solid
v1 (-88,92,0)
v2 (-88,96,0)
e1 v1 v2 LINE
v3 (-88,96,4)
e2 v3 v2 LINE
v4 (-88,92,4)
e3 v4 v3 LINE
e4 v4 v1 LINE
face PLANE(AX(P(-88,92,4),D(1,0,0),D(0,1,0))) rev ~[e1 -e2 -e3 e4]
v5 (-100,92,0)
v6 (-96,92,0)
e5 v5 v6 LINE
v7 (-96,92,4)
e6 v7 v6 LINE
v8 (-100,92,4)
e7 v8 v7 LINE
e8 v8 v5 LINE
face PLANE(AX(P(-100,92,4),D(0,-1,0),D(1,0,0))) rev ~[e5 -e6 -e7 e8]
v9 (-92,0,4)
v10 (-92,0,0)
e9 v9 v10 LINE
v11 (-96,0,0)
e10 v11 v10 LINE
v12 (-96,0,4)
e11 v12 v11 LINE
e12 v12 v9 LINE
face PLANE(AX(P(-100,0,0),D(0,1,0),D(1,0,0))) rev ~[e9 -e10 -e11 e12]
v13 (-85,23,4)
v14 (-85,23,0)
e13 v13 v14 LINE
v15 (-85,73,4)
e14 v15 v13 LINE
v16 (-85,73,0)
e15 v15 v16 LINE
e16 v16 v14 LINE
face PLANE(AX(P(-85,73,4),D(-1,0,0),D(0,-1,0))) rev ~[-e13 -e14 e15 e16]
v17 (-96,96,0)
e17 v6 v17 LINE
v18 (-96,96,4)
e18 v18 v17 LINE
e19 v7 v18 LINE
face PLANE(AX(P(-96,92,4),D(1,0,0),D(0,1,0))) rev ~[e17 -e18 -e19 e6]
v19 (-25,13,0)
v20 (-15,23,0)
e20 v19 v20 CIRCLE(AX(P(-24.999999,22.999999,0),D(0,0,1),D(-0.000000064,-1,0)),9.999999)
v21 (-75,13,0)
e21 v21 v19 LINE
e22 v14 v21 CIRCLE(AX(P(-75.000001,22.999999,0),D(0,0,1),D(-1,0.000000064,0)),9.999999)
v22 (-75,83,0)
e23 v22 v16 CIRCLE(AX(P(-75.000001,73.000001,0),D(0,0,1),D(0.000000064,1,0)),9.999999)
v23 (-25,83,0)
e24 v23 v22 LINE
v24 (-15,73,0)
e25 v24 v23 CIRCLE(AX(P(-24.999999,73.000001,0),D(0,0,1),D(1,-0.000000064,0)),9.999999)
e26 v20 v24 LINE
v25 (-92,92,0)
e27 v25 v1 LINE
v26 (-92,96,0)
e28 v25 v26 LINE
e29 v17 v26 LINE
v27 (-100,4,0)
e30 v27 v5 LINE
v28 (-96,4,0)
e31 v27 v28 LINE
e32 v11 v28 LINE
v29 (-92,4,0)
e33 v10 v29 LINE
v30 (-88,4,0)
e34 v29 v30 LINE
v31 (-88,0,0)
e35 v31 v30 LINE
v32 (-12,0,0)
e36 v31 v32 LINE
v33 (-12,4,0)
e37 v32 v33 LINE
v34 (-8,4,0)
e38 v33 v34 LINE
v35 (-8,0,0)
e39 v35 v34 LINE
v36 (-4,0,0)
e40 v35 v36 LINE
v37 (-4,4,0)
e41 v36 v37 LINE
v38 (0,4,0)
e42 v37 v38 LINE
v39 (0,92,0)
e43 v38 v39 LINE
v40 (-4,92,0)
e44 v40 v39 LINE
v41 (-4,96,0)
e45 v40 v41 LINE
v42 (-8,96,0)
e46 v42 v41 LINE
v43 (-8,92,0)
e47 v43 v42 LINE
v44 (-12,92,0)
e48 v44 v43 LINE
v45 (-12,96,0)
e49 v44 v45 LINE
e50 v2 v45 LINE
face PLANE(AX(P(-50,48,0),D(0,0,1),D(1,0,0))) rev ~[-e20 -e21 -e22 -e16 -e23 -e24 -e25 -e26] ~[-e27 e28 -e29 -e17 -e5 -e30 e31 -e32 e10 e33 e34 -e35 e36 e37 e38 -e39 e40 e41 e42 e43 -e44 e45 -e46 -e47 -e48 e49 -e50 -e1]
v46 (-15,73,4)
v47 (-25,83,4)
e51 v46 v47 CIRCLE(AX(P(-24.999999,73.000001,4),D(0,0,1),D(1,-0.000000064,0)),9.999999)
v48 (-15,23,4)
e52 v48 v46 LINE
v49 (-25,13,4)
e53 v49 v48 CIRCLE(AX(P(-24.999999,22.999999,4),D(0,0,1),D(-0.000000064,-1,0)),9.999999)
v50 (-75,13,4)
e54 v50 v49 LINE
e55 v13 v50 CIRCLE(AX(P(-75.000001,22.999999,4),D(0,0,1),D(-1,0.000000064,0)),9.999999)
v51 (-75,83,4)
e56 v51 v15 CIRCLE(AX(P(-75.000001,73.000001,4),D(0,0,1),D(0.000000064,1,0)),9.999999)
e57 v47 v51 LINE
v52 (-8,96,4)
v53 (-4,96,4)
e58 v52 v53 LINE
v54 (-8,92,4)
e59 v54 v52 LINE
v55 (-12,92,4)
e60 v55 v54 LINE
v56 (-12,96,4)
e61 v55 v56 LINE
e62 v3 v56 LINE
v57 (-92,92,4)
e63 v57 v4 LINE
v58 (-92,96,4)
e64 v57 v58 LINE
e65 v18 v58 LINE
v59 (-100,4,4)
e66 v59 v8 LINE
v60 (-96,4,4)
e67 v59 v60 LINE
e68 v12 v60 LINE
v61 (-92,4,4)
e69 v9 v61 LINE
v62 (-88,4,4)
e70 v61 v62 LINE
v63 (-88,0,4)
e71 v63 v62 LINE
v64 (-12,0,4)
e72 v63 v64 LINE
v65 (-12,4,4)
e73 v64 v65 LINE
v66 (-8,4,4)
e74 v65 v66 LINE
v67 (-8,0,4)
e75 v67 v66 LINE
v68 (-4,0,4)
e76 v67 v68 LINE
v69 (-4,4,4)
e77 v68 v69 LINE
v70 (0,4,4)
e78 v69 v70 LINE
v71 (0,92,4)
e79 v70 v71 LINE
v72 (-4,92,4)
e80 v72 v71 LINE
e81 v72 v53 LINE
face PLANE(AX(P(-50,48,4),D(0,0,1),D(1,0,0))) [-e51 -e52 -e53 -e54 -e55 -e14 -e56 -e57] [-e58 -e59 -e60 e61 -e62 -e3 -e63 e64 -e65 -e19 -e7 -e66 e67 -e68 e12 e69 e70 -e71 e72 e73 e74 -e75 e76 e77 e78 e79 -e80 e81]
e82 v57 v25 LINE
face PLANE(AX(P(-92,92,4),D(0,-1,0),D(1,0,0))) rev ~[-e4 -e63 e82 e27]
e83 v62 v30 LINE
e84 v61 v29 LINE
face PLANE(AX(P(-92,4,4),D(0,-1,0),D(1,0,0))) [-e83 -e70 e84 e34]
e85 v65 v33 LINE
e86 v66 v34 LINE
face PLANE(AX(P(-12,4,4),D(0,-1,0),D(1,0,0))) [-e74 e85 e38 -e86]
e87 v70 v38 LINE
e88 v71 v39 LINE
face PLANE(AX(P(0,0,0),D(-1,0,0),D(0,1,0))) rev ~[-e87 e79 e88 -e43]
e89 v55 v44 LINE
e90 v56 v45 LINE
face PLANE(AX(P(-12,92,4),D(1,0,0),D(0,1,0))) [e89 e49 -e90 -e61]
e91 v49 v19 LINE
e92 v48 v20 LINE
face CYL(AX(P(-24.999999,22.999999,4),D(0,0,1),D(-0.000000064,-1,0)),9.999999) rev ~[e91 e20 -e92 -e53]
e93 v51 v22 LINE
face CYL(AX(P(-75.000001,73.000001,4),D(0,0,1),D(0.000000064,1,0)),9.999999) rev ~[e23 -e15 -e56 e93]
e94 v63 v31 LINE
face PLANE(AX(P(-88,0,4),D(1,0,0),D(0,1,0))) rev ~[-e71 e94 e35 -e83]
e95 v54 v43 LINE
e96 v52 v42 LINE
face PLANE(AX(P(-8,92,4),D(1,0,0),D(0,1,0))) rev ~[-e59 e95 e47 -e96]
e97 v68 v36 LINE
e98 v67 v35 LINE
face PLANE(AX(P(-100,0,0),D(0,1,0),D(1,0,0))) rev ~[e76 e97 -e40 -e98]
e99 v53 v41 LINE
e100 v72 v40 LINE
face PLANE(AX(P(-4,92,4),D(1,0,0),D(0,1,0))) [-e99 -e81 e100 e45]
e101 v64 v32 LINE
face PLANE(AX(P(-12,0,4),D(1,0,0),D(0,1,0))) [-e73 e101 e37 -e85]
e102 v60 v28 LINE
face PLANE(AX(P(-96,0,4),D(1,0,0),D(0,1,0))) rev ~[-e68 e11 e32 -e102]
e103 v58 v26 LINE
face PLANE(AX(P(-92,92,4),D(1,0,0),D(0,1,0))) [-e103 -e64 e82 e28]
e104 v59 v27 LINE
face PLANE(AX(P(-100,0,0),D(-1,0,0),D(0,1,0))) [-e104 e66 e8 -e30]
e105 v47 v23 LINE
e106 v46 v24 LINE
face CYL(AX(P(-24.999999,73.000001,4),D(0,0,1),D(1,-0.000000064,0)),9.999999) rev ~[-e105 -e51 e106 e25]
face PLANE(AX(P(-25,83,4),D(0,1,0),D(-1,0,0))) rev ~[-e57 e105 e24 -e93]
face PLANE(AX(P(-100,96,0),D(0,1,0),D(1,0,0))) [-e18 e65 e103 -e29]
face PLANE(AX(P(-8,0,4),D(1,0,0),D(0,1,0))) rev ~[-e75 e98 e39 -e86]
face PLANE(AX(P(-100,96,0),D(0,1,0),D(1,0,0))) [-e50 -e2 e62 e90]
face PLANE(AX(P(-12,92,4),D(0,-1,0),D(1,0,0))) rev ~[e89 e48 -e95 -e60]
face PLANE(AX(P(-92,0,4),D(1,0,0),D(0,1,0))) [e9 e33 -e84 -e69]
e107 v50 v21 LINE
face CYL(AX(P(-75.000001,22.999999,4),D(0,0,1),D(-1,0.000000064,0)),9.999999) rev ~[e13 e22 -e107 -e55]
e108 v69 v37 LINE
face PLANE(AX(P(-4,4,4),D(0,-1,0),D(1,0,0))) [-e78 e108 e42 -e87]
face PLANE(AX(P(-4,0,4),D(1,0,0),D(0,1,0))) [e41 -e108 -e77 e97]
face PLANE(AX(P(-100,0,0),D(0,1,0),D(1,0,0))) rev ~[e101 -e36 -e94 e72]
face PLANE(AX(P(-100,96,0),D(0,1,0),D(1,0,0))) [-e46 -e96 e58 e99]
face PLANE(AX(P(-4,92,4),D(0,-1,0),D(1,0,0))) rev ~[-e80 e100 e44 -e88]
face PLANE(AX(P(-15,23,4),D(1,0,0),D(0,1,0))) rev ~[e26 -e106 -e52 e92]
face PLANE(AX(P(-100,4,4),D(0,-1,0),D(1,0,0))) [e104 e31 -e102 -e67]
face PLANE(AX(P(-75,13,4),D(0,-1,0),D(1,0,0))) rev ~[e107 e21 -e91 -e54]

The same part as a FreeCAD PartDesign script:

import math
import FreeCAD as App
import Part
import Sketcher
from FreeCAD import Vector


def add_polygon(sketch, points):
    """Adds a closed chain of lines whose ends are joined by coincident constraints."""
    first, n = sketch.GeometryCount, len(points)
    for a, b in zip(points, points[1:] + points[:1]):
        sketch.addGeometry(Part.LineSegment(App.Vector(*a, 0), App.Vector(*b, 0)), False)
    for i in range(n):
        sketch.addConstraint(Sketcher.Constraint("Coincident", first + i, 2, first + (i + 1) % n, 1))

doc = App.newDocument("Part")
body = doc.addObject("PartDesign::Body", "Body")

# Sketch on XY plane
sketch1 = body.newObject("Sketcher::SketchObject", "Sketch")
sketch1.AttachmentSupport = (doc.getObject("XY_Plane"), [""])
sketch1.MapMode = "FlatFace"
add_polygon(sketch1, [(-100, 96), (-100, 0), (0, 0), (0, 96)])  # lines 0-3
sketch1.addConstraint([
    Sketcher.Constraint("Vertical", 0),
    Sketcher.Constraint("Horizontal", 1),
    Sketcher.Constraint("Vertical", 2),
    Sketcher.Constraint("Horizontal", 3),
    Sketcher.Constraint("Coincident", 1, 2, -1, 1),
    Sketcher.Constraint("DistanceX", 1, 1, 1, 2, 100.0),
    Sketcher.Constraint("DistanceY", 0, 2, 0, 1, 96.0),
])
pad1 = body.newObject("PartDesign::Pad", "Pad")
pad1.Profile = sketch1
pad1.Length = 4

# Sketch on XY plane
sketch2 = body.newObject("Sketcher::SketchObject", "Sketch001")
sketch2.AttachmentSupport = (doc.getObject("XY_Plane"), [""])
sketch2.MapMode = "FlatFace"
sketch2.AttachmentOffset = App.Placement(Vector(0, 0, 4), App.Rotation())
add_polygon(sketch2, [(-4, 4), (-4, 0), (0, 0), (0, 4)])  # lines 0-3
add_polygon(sketch2, [(-12, 4), (-12, 0), (-8, 0), (-8, 4)])  # lines 4-7
add_polygon(sketch2, [(-4, 96), (-4, 92), (0, 92), (0, 96)])  # lines 8-11
add_polygon(sketch2, [(-12, 96), (-12, 92), (-8, 92), (-8, 96)])  # lines 12-15
add_polygon(sketch2, [(-100, 96), (-100, 92), (-96, 92), (-96, 96)])  # lines 16-19
add_polygon(sketch2, [(-92, 4), (-92, 0), (-88, 0), (-88, 4)])  # lines 20-23
add_polygon(sketch2, [(-100, 4), (-100, 0), (-96, 0), (-96, 4)])  # lines 24-27
add_polygon(sketch2, [(-92, 96), (-92, 92), (-88, 92), (-88, 96)])  # lines 28-31
sketch2.addConstraint([
    Sketcher.Constraint("Vertical", 0),
    Sketcher.Constraint("Horizontal", 1),
    Sketcher.Constraint("Vertical", 2),
    Sketcher.Constraint("Horizontal", 3),
    Sketcher.Constraint("Vertical", 4),
    Sketcher.Constraint("Horizontal", 5),
    Sketcher.Constraint("Vertical", 6),
    Sketcher.Constraint("Horizontal", 7),
    Sketcher.Constraint("Vertical", 8),
    Sketcher.Constraint("Horizontal", 9),
    Sketcher.Constraint("Vertical", 10),
    Sketcher.Constraint("Horizontal", 11),
    Sketcher.Constraint("Vertical", 12),
    Sketcher.Constraint("Horizontal", 13),
    Sketcher.Constraint("Vertical", 14),
    Sketcher.Constraint("Horizontal", 15),
    Sketcher.Constraint("Vertical", 16),
    Sketcher.Constraint("Horizontal", 17),
    Sketcher.Constraint("Vertical", 18),
    Sketcher.Constraint("Horizontal", 19),
    Sketcher.Constraint("Vertical", 20),
    Sketcher.Constraint("Horizontal", 21),
    Sketcher.Constraint("Vertical", 22),
    Sketcher.Constraint("Horizontal", 23),
    Sketcher.Constraint("Vertical", 24),
    Sketcher.Constraint("Horizontal", 25),
    Sketcher.Constraint("Vertical", 26),
    Sketcher.Constraint("Horizontal", 27),
    Sketcher.Constraint("Vertical", 28),
    Sketcher.Constraint("Horizontal", 29),
    Sketcher.Constraint("Vertical", 30),
    Sketcher.Constraint("Horizontal", 31),
    Sketcher.Constraint("Coincident", 1, 2, -1, 1),
    Sketcher.Constraint("PointOnObject", 4, 2, -1),
    Sketcher.Constraint("PointOnObject", 9, 2, -2),
    Sketcher.Constraint("PointOnObject", 20, 2, -1),
    Sketcher.Constraint("PointOnObject", 24, 2, -1),
    Sketcher.Constraint("Horizontal", 3, 2, 6, 2),
    Sketcher.Constraint("Horizontal", 9, 2, 12, 2),
    Sketcher.Constraint("Horizontal", 11, 2, 14, 2),
    Sketcher.Constraint("Horizontal", 13, 2, 16, 2),
    Sketcher.Constraint("Horizontal", 15, 2, 18, 2),
    Sketcher.Constraint("Horizontal", 7, 2, 22, 2),
    Sketcher.Constraint("Horizontal", 23, 2, 26, 2),
    Sketcher.Constraint("Horizontal", 17, 2, 28, 2),
    Sketcher.Constraint("Horizontal", 19, 2, 30, 2),
    Sketcher.Constraint("Vertical", 3, 2, 8, 2),
    Sketcher.Constraint("Vertical", 7, 2, 12, 2),
    Sketcher.Constraint("Vertical", 6, 2, 13, 2),
    Sketcher.Constraint("Vertical", 19, 2, 24, 2),
    Sketcher.Constraint("Vertical", 18, 2, 25, 2),
    Sketcher.Constraint("Vertical", 23, 2, 28, 2),
    Sketcher.Constraint("Vertical", 22, 2, 29, 2),
    Sketcher.Constraint("Equal", 3, 5),
    Sketcher.Constraint("Equal", 15, 17),
    Sketcher.Constraint("Equal", 19, 21),
    Sketcher.Constraint("Equal", 31, 0),
    Sketcher.Constraint("Equal", 6, 8),
    Sketcher.Constraint("DistanceX", 1, 1, 1, 2, 4.0),
    Sketcher.Constraint("DistanceX", 4, 2, -1, 1, 12.0),
    Sketcher.Constraint("DistanceY", -1, 1, 8, 2, 92.0),
    Sketcher.Constraint("DistanceX", 16, 2, -1, 1, 100.0),
    Sketcher.Constraint("DistanceX", 20, 2, -1, 1, 92.0),
])
pocket1 = body.newObject("PartDesign::Pocket", "Pocket")
pocket1.Profile = sketch2
pocket1.Type = "ThroughAll"

# Sketch on XY plane
sketch3 = body.newObject("Sketcher::SketchObject", "Sketch002")
sketch3.AttachmentSupport = (doc.getObject("XY_Plane"), [""])
sketch3.MapMode = "FlatFace"
sketch3.AttachmentOffset = App.Placement(Vector(0, 0, 4), App.Rotation())
sketch3.addGeometry([
    Part.ArcOfCircle(Part.Circle(Vector(-75.000001, 22.999999, 0), Vector(0, 0, 1), 9.999999), math.radians(179.999996), math.radians(270.000004)),  # 0
    Part.LineSegment(Vector(-75, 13, 0), Vector(-25, 13, 0)),  # 1
    Part.ArcOfCircle(Part.Circle(Vector(-24.999999, 22.999999, 0), Vector(0, 0, 1), 9.999999), math.radians(-90.000004), math.radians(0.000004)),  # 2
    Part.LineSegment(Vector(-15, 23, 0), Vector(-15, 73, 0)),  # 3
    Part.ArcOfCircle(Part.Circle(Vector(-24.999999, 73.000001, 0), Vector(0, 0, 1), 9.999999), math.radians(-0.000004), math.radians(90.000004)),  # 4
    Part.LineSegment(Vector(-25, 83, 0), Vector(-75, 83, 0)),  # 5
    Part.ArcOfCircle(Part.Circle(Vector(-75.000001, 73.000001, 0), Vector(0, 0, 1), 9.999999), math.radians(89.999996), math.radians(180.000004)),  # 6
    Part.LineSegment(Vector(-85, 73, 0), Vector(-85, 23, 0)),  # 7
], False)
sketch3.addConstraint([
    Sketcher.Constraint("Tangent", 0, 2, 1, 1),
    Sketcher.Constraint("Tangent", 1, 2, 2, 1),
    Sketcher.Constraint("Tangent", 2, 2, 3, 1),
    Sketcher.Constraint("Tangent", 3, 2, 4, 1),
    Sketcher.Constraint("Tangent", 4, 2, 5, 1),
    Sketcher.Constraint("Tangent", 5, 2, 6, 1),
    Sketcher.Constraint("Tangent", 6, 2, 7, 1),
    Sketcher.Constraint("Tangent", 7, 2, 0, 1),
    Sketcher.Constraint("Horizontal", 1),
    Sketcher.Constraint("Vertical", 3),
    Sketcher.Constraint("Horizontal", 5),
    Sketcher.Constraint("Vertical", 7),
    Sketcher.Constraint("Equal", 0, 2),
    Sketcher.Constraint("Equal", 2, 4),
    Sketcher.Constraint("Equal", 4, 6),
    Sketcher.Constraint("Equal", 5, 3),
    Sketcher.Constraint("Radius", 0, 9.999999),
    Sketcher.Constraint("DistanceX", 1, 1, 1, 2, 50.0),
    Sketcher.Constraint("DistanceX", 0, 3, -1, 1, 75.000001),
    Sketcher.Constraint("DistanceY", -1, 1, 0, 3, 22.999999),
])
pocket2 = body.newObject("PartDesign::Pocket", "Pocket001")
pocket2.Profile = sketch3
pocket2.Type = "ThroughAll"

doc.recompute()
